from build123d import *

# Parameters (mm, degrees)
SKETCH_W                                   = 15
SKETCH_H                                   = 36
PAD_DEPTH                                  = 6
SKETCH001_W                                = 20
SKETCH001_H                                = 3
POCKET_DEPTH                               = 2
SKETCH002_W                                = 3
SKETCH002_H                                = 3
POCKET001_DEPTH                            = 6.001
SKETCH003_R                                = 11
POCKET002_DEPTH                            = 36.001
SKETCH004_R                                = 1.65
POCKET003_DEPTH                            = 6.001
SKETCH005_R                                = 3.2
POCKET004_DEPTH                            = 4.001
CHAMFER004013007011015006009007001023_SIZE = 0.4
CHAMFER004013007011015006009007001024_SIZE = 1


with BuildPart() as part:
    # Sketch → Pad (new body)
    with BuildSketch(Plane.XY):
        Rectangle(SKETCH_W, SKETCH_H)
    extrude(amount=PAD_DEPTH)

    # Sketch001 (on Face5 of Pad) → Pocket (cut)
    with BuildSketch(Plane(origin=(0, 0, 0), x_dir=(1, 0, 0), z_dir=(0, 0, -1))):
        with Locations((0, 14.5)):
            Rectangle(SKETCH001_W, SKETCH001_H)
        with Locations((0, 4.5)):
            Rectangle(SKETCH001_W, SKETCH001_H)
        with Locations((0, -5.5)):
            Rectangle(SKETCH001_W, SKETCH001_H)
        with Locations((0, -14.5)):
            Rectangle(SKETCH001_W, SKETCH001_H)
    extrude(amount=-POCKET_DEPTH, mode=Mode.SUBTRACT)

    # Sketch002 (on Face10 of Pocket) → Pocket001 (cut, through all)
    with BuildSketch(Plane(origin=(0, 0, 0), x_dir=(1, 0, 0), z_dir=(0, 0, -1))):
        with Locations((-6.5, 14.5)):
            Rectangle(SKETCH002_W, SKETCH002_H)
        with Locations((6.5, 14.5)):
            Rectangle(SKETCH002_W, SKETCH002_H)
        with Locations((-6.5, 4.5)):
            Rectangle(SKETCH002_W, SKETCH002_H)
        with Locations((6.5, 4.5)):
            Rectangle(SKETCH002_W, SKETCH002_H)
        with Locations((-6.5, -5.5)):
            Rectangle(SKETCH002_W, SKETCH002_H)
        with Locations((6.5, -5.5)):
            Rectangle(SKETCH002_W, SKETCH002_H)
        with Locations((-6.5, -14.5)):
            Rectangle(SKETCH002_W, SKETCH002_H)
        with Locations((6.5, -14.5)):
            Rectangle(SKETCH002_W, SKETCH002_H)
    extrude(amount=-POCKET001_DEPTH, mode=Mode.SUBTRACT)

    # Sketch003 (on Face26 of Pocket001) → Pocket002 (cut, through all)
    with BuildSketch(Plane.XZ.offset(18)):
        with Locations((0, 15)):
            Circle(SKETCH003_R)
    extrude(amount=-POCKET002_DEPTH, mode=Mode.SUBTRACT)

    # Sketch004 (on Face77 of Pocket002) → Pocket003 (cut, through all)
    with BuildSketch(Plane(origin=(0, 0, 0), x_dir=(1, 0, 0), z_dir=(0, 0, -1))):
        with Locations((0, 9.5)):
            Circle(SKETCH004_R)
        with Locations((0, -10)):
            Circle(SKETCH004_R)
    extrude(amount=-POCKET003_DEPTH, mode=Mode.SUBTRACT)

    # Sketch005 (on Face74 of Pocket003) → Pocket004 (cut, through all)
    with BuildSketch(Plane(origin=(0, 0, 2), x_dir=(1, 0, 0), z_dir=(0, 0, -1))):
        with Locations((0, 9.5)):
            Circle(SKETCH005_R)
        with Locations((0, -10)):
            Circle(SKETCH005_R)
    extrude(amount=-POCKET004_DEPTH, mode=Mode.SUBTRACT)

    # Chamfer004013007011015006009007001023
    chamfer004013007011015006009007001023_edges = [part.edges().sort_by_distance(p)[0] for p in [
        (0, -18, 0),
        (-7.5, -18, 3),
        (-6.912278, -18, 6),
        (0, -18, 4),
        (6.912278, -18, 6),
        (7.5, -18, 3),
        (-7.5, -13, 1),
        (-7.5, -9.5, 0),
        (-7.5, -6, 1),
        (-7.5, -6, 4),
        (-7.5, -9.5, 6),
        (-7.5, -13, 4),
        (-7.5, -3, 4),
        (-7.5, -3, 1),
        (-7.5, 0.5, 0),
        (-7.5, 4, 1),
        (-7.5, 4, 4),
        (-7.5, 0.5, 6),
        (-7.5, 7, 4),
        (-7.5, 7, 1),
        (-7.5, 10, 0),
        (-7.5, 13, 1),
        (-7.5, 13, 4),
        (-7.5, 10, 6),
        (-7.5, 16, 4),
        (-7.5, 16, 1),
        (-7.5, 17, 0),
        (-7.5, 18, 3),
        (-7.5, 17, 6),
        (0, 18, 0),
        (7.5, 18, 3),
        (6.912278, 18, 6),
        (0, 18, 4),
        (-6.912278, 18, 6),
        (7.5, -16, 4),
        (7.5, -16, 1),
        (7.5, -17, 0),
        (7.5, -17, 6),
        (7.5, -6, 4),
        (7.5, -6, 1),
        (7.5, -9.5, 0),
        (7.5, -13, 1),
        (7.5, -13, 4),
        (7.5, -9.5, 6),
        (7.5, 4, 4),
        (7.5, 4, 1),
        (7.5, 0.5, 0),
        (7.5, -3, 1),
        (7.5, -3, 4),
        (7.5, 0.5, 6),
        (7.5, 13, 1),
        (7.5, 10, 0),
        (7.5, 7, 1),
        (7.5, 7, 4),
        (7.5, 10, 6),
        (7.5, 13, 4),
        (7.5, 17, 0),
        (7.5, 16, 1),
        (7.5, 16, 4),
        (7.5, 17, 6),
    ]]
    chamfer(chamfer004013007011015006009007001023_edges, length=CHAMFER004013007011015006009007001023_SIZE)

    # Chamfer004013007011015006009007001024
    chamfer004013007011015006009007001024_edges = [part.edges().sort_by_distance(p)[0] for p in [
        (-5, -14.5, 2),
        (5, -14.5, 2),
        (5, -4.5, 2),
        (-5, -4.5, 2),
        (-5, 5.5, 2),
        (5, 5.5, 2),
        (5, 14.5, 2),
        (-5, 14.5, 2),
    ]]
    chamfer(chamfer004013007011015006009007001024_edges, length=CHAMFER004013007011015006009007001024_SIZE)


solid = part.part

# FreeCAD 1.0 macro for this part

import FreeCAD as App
import Part
import Sketcher
Q = App.Units.Quantity


def edges_at(feature, points):
    """Names of the edges that pass closest to the given points."""
    edges = feature.Shape.Edges
    near = lambda p: min(range(len(edges)), key=lambda i: edges[i].distToShape(Part.Vertex(*p))[0])
    return sorted({f"Edge{near(p) + 1}" for p in points})

doc = App.newDocument("Part")
body = doc.addObject("PartDesign::Body", "Body")

# Sketch on XY plane
sketch1 = body.newObject("Sketcher::SketchObject", "Sketch")
sketch1.AttachmentSupport = (doc.getObject("XY_Plane"), [""])
sketch1.MapMode = "FlatFace"
sketch1.addGeometry([
    Part.LineSegment(App.Vector(-8, 18, 0), App.Vector(-8, -18, 0)),
    Part.LineSegment(App.Vector(-8, -18, 0), App.Vector(8, -18, 0)),
    Part.LineSegment(App.Vector(8, -18, 0), App.Vector(8, 18, 0)),
    Part.LineSegment(App.Vector(8, 18, 0), App.Vector(-8, 18, 0)),
], False)
sketch1.addConstraint([
    Sketcher.Constraint("Coincident", 0, 2, 1, 1),
    Sketcher.Constraint("Coincident", 1, 2, 2, 1),
    Sketcher.Constraint("Coincident", 2, 2, 3, 1),
    Sketcher.Constraint("Coincident", 3, 2, 0, 1),
    Sketcher.Constraint("Vertical", 0),
    Sketcher.Constraint("Horizontal", 1),
    Sketcher.Constraint("Vertical", 2),
    Sketcher.Constraint("Horizontal", 3),
    Sketcher.Constraint("Symmetric", 0, 2, 2, 2, -1, 1),
    Sketcher.Constraint("DistanceX", 1, 1, 1, 2, Q("15 mm")),
    Sketcher.Constraint("DistanceY", 0, 2, 0, 1, Q("36 mm")),
])
pad1 = body.newObject("PartDesign::Pad", "Pad")
pad1.Profile = sketch1
pad1.Length = 6

# Sketch on XY plane
sketch2 = body.newObject("Sketcher::SketchObject", "Sketch001")
sketch2.AttachmentSupport = (doc.getObject("XY_Plane"), [""])
sketch2.MapMode = "FlatFace"
sketch2.addGeometry([
    Part.LineSegment(App.Vector(-10, -16, 0), App.Vector(-10, -13, 0)),  # 0
    Part.LineSegment(App.Vector(-10, -13, 0), App.Vector(10, -13, 0)),  # 1
    Part.LineSegment(App.Vector(10, -13, 0), App.Vector(10, -16, 0)),  # 2
    Part.LineSegment(App.Vector(10, -16, 0), App.Vector(-10, -16, 0)),  # 3
    Part.LineSegment(App.Vector(-10, -6, 0), App.Vector(-10, -3, 0)),  # 4
    Part.LineSegment(App.Vector(-10, -3, 0), App.Vector(10, -3, 0)),  # 5
    Part.LineSegment(App.Vector(10, -3, 0), App.Vector(10, -6, 0)),  # 6
    Part.LineSegment(App.Vector(10, -6, 0), App.Vector(-10, -6, 0)),  # 7
    Part.LineSegment(App.Vector(-10, 4, 0), App.Vector(-10, 7, 0)),  # 8
    Part.LineSegment(App.Vector(-10, 7, 0), App.Vector(10, 7, 0)),  # 9
    Part.LineSegment(App.Vector(10, 7, 0), App.Vector(10, 4, 0)),  # 10
    Part.LineSegment(App.Vector(10, 4, 0), App.Vector(-10, 4, 0)),  # 11
    Part.LineSegment(App.Vector(-10, 13, 0), App.Vector(-10, 16, 0)),  # 12
    Part.LineSegment(App.Vector(-10, 16, 0), App.Vector(10, 16, 0)),  # 13
    Part.LineSegment(App.Vector(10, 16, 0), App.Vector(10, 13, 0)),  # 14
    Part.LineSegment(App.Vector(10, 13, 0), App.Vector(-10, 13, 0)),  # 15
], False)
sketch2.addConstraint([
    Sketcher.Constraint("Coincident", 0, 2, 1, 1),
    Sketcher.Constraint("Coincident", 1, 2, 2, 1),
    Sketcher.Constraint("Coincident", 2, 2, 3, 1),
    Sketcher.Constraint("Coincident", 3, 2, 0, 1),
    Sketcher.Constraint("Coincident", 4, 2, 5, 1),
    Sketcher.Constraint("Coincident", 5, 2, 6, 1),
    Sketcher.Constraint("Coincident", 6, 2, 7, 1),
    Sketcher.Constraint("Coincident", 7, 2, 4, 1),
    Sketcher.Constraint("Coincident", 8, 2, 9, 1),
    Sketcher.Constraint("Coincident", 9, 2, 10, 1),
    Sketcher.Constraint("Coincident", 10, 2, 11, 1),
    Sketcher.Constraint("Coincident", 11, 2, 8, 1),
    Sketcher.Constraint("Coincident", 12, 2, 13, 1),
    Sketcher.Constraint("Coincident", 13, 2, 14, 1),
    Sketcher.Constraint("Coincident", 14, 2, 15, 1),
    Sketcher.Constraint("Coincident", 15, 2, 12, 1),
    Sketcher.Constraint("Vertical", 0),
    Sketcher.Constraint("Horizontal", 1),
    Sketcher.Constraint("Vertical", 2),
    Sketcher.Constraint("Horizontal", 3),
    Sketcher.Constraint("Vertical", 4),
    Sketcher.Constraint("Horizontal", 5),
    Sketcher.Constraint("Vertical", 6),
    Sketcher.Constraint("Horizontal", 7),
    Sketcher.Constraint("Vertical", 8),
    Sketcher.Constraint("Horizontal", 9),
    Sketcher.Constraint("Vertical", 10),
    Sketcher.Constraint("Horizontal", 11),
    Sketcher.Constraint("Vertical", 12),
    Sketcher.Constraint("Horizontal", 13),
    Sketcher.Constraint("Vertical", 14),
    Sketcher.Constraint("Horizontal", 15),
    Sketcher.Constraint("Symmetric", 2, 2, 12, 2, -1, 1),
    Sketcher.Constraint("Symmetric", 0, 2, 14, 2, -1, 1),
    Sketcher.Constraint("Vertical", 3, 2, 4, 2),
    Sketcher.Constraint("Vertical", 2, 2, 5, 2),
    Sketcher.Constraint("Vertical", 7, 2, 8, 2),
    Sketcher.Constraint("Vertical", 6, 2, 9, 2),
    Sketcher.Constraint("Vertical", 11, 2, 12, 2),
    Sketcher.Constraint("Equal", 2, 4),
    Sketcher.Constraint("Equal", 6, 8),
    Sketcher.Constraint("DistanceX", 1, 1, 1, 2, Q("20 mm")),
    Sketcher.Constraint("DistanceY", 0, 1, 0, 2, Q("3 mm")),
    Sketcher.Constraint("DistanceY", 0, 2, -1, 1, Q("13 mm")),
    Sketcher.Constraint("DistanceY", 4, 2, -1, 1, Q("3 mm")),
    Sketcher.Constraint("DistanceY", -1, 1, 8, 2, Q("7 mm")),
])
pocket1 = body.newObject("PartDesign::Pocket", "Pocket")
pocket1.Profile = sketch2
pocket1.Length = 2
pocket1.Reversed = True

# Sketch on XY plane
sketch3 = body.newObject("Sketcher::SketchObject", "Sketch002")
sketch3.AttachmentSupport = (doc.getObject("XY_Plane"), [""])
sketch3.MapMode = "FlatFace"
sketch3.addGeometry([
    Part.LineSegment(App.Vector(-8, -16, 0), App.Vector(-8, -13, 0)),  # 0
    Part.LineSegment(App.Vector(-8, -13, 0), App.Vector(-5, -13, 0)),  # 1
    Part.LineSegment(App.Vector(-5, -13, 0), App.Vector(-5, -16, 0)),  # 2
    Part.LineSegment(App.Vector(-5, -16, 0), App.Vector(-8, -16, 0)),  # 3
    Part.LineSegment(App.Vector(5, -16, 0), App.Vector(5, -13, 0)),  # 4
    Part.LineSegment(App.Vector(5, -13, 0), App.Vector(8, -13, 0)),  # 5
    Part.LineSegment(App.Vector(8, -13, 0), App.Vector(8, -16, 0)),  # 6
    Part.LineSegment(App.Vector(8, -16, 0), App.Vector(5, -16, 0)),  # 7
    Part.LineSegment(App.Vector(-8, -6, 0), App.Vector(-8, -3, 0)),  # 8
    Part.LineSegment(App.Vector(-8, -3, 0), App.Vector(-5, -3, 0)),  # 9
    Part.LineSegment(App.Vector(-5, -3, 0), App.Vector(-5, -6, 0)),  # 10
    Part.LineSegment(App.Vector(-5, -6, 0), App.Vector(-8, -6, 0)),  # 11
    Part.LineSegment(App.Vector(5, -6, 0), App.Vector(5, -3, 0)),  # 12
    Part.LineSegment(App.Vector(5, -3, 0), App.Vector(8, -3, 0)),  # 13
    Part.LineSegment(App.Vector(8, -3, 0), App.Vector(8, -6, 0)),  # 14
    Part.LineSegment(App.Vector(8, -6, 0), App.Vector(5, -6, 0)),  # 15
    Part.LineSegment(App.Vector(-8, 4, 0), App.Vector(-8, 7, 0)),  # 16
    Part.LineSegment(App.Vector(-8, 7, 0), App.Vector(-5, 7, 0)),  # 17
    Part.LineSegment(App.Vector(-5, 7, 0), App.Vector(-5, 4, 0)),  # 18
    Part.LineSegment(App.Vector(-5, 4, 0), App.Vector(-8, 4, 0)),  # 19
    Part.LineSegment(App.Vector(5, 4, 0), App.Vector(5, 7, 0)),  # 20
    Part.LineSegment(App.Vector(5, 7, 0), App.Vector(8, 7, 0)),  # 21
    Part.LineSegment(App.Vector(8, 7, 0), App.Vector(8, 4, 0)),  # 22
    Part.LineSegment(App.Vector(8, 4, 0), App.Vector(5, 4, 0)),  # 23
    Part.LineSegment(App.Vector(-8, 13, 0), App.Vector(-8, 16, 0)),  # 24
    Part.LineSegment(App.Vector(-8, 16, 0), App.Vector(-5, 16, 0)),  # 25
    Part.LineSegment(App.Vector(-5, 16, 0), App.Vector(-5, 13, 0)),  # 26
    Part.LineSegment(App.Vector(-5, 13, 0), App.Vector(-8, 13, 0)),  # 27
    Part.LineSegment(App.Vector(5, 13, 0), App.Vector(5, 16, 0)),  # 28
    Part.LineSegment(App.Vector(5, 16, 0), App.Vector(8, 16, 0)),  # 29
    Part.LineSegment(App.Vector(8, 16, 0), App.Vector(8, 13, 0)),  # 30
    Part.LineSegment(App.Vector(8, 13, 0), App.Vector(5, 13, 0)),  # 31
], False)
sketch3.addConstraint([
    Sketcher.Constraint("Coincident", 0, 2, 1, 1),
    Sketcher.Constraint("Coincident", 1, 2, 2, 1),
    Sketcher.Constraint("Coincident", 2, 2, 3, 1),
    Sketcher.Constraint("Coincident", 3, 2, 0, 1),
    Sketcher.Constraint("Coincident", 4, 2, 5, 1),
    Sketcher.Constraint("Coincident", 5, 2, 6, 1),
    Sketcher.Constraint("Coincident", 6, 2, 7, 1),
    Sketcher.Constraint("Coincident", 7, 2, 4, 1),
    Sketcher.Constraint("Coincident", 8, 2, 9, 1),
    Sketcher.Constraint("Coincident", 9, 2, 10, 1),
    Sketcher.Constraint("Coincident", 10, 2, 11, 1),
    Sketcher.Constraint("Coincident", 11, 2, 8, 1),
    Sketcher.Constraint("Coincident", 12, 2, 13, 1),
    Sketcher.Constraint("Coincident", 13, 2, 14, 1),
    Sketcher.Constraint("Coincident", 14, 2, 15, 1),
    Sketcher.Constraint("Coincident", 15, 2, 12, 1),
    Sketcher.Constraint("Coincident", 16, 2, 17, 1),
    Sketcher.Constraint("Coincident", 17, 2, 18, 1),
    Sketcher.Constraint("Coincident", 18, 2, 19, 1),
    Sketcher.Constraint("Coincident", 19, 2, 16, 1),
    Sketcher.Constraint("Coincident", 20, 2, 21, 1),
    Sketcher.Constraint("Coincident", 21, 2, 22, 1),
    Sketcher.Constraint("Coincident", 22, 2, 23, 1),
    Sketcher.Constraint("Coincident", 23, 2, 20, 1),
    Sketcher.Constraint("Coincident", 24, 2, 25, 1),
    Sketcher.Constraint("Coincident", 25, 2, 26, 1),
    Sketcher.Constraint("Coincident", 26, 2, 27, 1),
    Sketcher.Constraint("Coincident", 27, 2, 24, 1),
    Sketcher.Constraint("Coincident", 28, 2, 29, 1),
    Sketcher.Constraint("Coincident", 29, 2, 30, 1),
    Sketcher.Constraint("Coincident", 30, 2, 31, 1),
    Sketcher.Constraint("Coincident", 31, 2, 28, 1),
    Sketcher.Constraint("Vertical", 0),
    Sketcher.Constraint("Horizontal", 1),
    Sketcher.Constraint("Vertical", 2),
    Sketcher.Constraint("Horizontal", 3),
    Sketcher.Constraint("Vertical", 4),
    Sketcher.Constraint("Horizontal", 5),
    Sketcher.Constraint("Vertical", 6),
    Sketcher.Constraint("Horizontal", 7),
    Sketcher.Constraint("Vertical", 8),
    Sketcher.Constraint("Horizontal", 9),
    Sketcher.Constraint("Vertical", 10),
    Sketcher.Constraint("Horizontal", 11),
    Sketcher.Constraint("Vertical", 12),
    Sketcher.Constraint("Horizontal", 13),
    Sketcher.Constraint("Vertical", 14),
    Sketcher.Constraint("Horizontal", 15),
    Sketcher.Constraint("Vertical", 16),
    Sketcher.Constraint("Horizontal", 17),
    Sketcher.Constraint("Vertical", 18),
    Sketcher.Constraint("Horizontal", 19),
    Sketcher.Constraint("Vertical", 20),
    Sketcher.Constraint("Horizontal", 21),
    Sketcher.Constraint("Vertical", 22),
    Sketcher.Constraint("Horizontal", 23),
    Sketcher.Constraint("Vertical", 24),
    Sketcher.Constraint("Horizontal", 25),
    Sketcher.Constraint("Vertical", 26),
    Sketcher.Constraint("Horizontal", 27),
    Sketcher.Constraint("Vertical", 28),
    Sketcher.Constraint("Horizontal", 29),
    Sketcher.Constraint("Vertical", 30),
    Sketcher.Constraint("Horizontal", 31),
    Sketcher.Constraint("Symmetric", 6, 2, 24, 2, -1, 1),
    Sketcher.Constraint("Symmetric", 4, 2, 26, 2, -1, 1),
    Sketcher.Constraint("Symmetric", 2, 2, 28, 2, -1, 1),
    Sketcher.Constraint("Symmetric", 0, 2, 30, 2, -1, 1),
    Sketcher.Constraint("Symmetric", 1, 2, 4, 2, -2),
    Sketcher.Constraint("Symmetric", 3, 2, 6, 2, -2),
    Sketcher.Constraint("Symmetric", 9, 2, 12, 2, -2),
    Sketcher.Constraint("Symmetric", 11, 2, 14, 2, -2),
    Sketcher.Constraint("Symmetric", 17, 2, 20, 2, -2),
    Sketcher.Constraint("Symmetric", 19, 2, 22, 2, -2),
    Sketcher.Constraint("Vertical", 3, 2, 8, 2),
    Sketcher.Constraint("Vertical", 2, 2, 9, 2),
    Sketcher.Constraint("Vertical", 11, 2, 16, 2),
    Sketcher.Constraint("Vertical", 10, 2, 17, 2),
    Sketcher.Constraint("Equal", 31, 0),
    Sketcher.Constraint("Equal", 6, 8),
    Sketcher.Constraint("Equal", 14, 16),
    Sketcher.Constraint("DistanceX", 1, 1, 1, 2, Q("3 mm")),
    Sketcher.Constraint("DistanceX", 0, 2, -1, 1, Q("8 mm")),
    Sketcher.Constraint("DistanceY", 0, 2, -1, 1, Q("13 mm")),
    Sketcher.Constraint("DistanceY", 8, 2, -1, 1, Q("3 mm")),
    Sketcher.Constraint("DistanceY", -1, 1, 16, 2, Q("7 mm")),
])
pocket2 = body.newObject("PartDesign::Pocket", "Pocket001")
pocket2.Profile = sketch3
pocket2.Type = "ThroughAll"
pocket2.Reversed = True

# Sketch on XZ plane
sketch4 = body.newObject("Sketcher::SketchObject", "Sketch003")
sketch4.AttachmentSupport = (doc.getObject("XZ_Plane"), [""])
sketch4.MapMode = "FlatFace"
sketch4.AttachmentOffset = App.Placement(App.Vector(0, 0, 18), App.Rotation())
sketch4.addGeometry(Part.Circle(App.Vector(0, 15, 0), App.Vector(0, 0, 1), 11), False)
sketch4.addConstraint([
    Sketcher.Constraint("PointOnObject", 0, 3, -2),
    Sketcher.Constraint("Diameter", 0, Q("22 mm")),
    Sketcher.Constraint("DistanceY", -1, 1, 0, 3, Q("15 mm")),
])
pocket3 = body.newObject("PartDesign::Pocket", "Pocket002")
pocket3.Profile = sketch4
pocket3.Type = "ThroughAll"

# Sketch on XY plane
sketch5 = body.newObject("Sketcher::SketchObject", "Sketch004")
sketch5.AttachmentSupport = (doc.getObject("XY_Plane"), [""])
sketch5.MapMode = "FlatFace"
sketch5.addGeometry([
    Part.Circle(App.Vector(0, -9.5, 0), App.Vector(0, 0, 1), 1.6),
    Part.Circle(App.Vector(0, 10, 0), App.Vector(0, 0, 1), 1.6),
], False)
sketch5.addConstraint([
    Sketcher.Constraint("Equal", 0, 1),
    Sketcher.Constraint("PointOnObject", 0, 3, -2),
    Sketcher.Constraint("PointOnObject", 1, 3, -2),
    Sketcher.Constraint("Diameter", 0, Q("3.3 mm")),
    Sketcher.Constraint("DistanceY", -1, 1, 1, 3, Q("10 mm")),
    Sketcher.Constraint("DistanceY", 0, 3, -1, 1, Q("9.5 mm")),
])
pocket4 = body.newObject("PartDesign::Pocket", "Pocket003")
pocket4.Profile = sketch5
pocket4.Type = "ThroughAll"
pocket4.Reversed = True

# Sketch on XY plane
sketch6 = body.newObject("Sketcher::SketchObject", "Sketch005")
sketch6.AttachmentSupport = (doc.getObject("XY_Plane"), [""])
sketch6.MapMode = "FlatFace"
sketch6.AttachmentOffset = App.Placement(App.Vector(0, 0, 2), App.Rotation())
sketch6.addGeometry([
    Part.Circle(App.Vector(0, -9.5, 0), App.Vector(0, 0, 1), 3.2),
    Part.Circle(App.Vector(0, 10, 0), App.Vector(0, 0, 1), 3.2),
], False)
sketch6.addConstraint([
    Sketcher.Constraint("Equal", 0, 1),
    Sketcher.Constraint("PointOnObject", 0, 3, -2),
    Sketcher.Constraint("PointOnObject", 1, 3, -2),
    Sketcher.Constraint("Diameter", 0, Q("6.4 mm")),
    Sketcher.Constraint("DistanceY", -1, 1, 1, 3, Q("10 mm")),
    Sketcher.Constraint("DistanceY", 0, 3, -1, 1, Q("9.5 mm")),
])
pocket5 = body.newObject("PartDesign::Pocket", "Pocket004")
pocket5.Profile = sketch6
pocket5.Type = "ThroughAll"
pocket5.Reversed = True
doc.recompute()

chamfer = body.newObject("PartDesign::Chamfer", "Chamfer")
chamfer.Base = (pocket5, edges_at(pocket5, [
    (0, -18, 0),
    (-7.5, -18, 3),
    (-6.912, -18, 6),
    (0, -18, 4),
    (6.912, -18, 6),
    (7.5, -18, 3),
    (-7.5, -13, 3),
    (-7.5, -9.5, 0),
    (-7.5, -6, 3),
    (-7.5, -6, 3),
    (-7.5, -9.5, 6),
    (-7.5, -13, 3),
    (-7.5, -3, 3),
    (-7.5, -3, 3),
    (-7.5, 0.5, 0),
    (-7.5, 4, 3),
    (-7.5, 4, 3),
    (-7.5, 0.5, 6),
    (-7.5, 7, 3),
    (-7.5, 7, 3),
    (-7.5, 10, 0),
    (-7.5, 13, 3),
    (-7.5, 13, 3),
    (-7.5, 10, 6),
    (-7.5, 16, 3),
    (-7.5, 16, 3),
    (-7.5, 17, 0),
    (-7.5, 18, 3),
    (-7.5, 17, 6),
    (0, 18, 0),
    (7.5, 18, 3),
    (6.912, 18, 6),
    (0, 18, 4),
    (-6.912, 18, 6),
    (7.5, -16, 3),
    (7.5, -16, 3),
    (7.5, -17, 0),
    (7.5, -17, 6),
    (7.5, -6, 3),
    (7.5, -6, 3),
    (7.5, -9.5, 0),
    (7.5, -13, 3),
    (7.5, -13, 3),
    (7.5, -9.5, 6),
    (7.5, 4, 3),
    (7.5, 4, 3),
    (7.5, 0.5, 0),
    (7.5, -3, 3),
    (7.5, -3, 3),
    (7.5, 0.5, 6),
    (7.5, 13, 3),
    (7.5, 10, 0),
    (7.5, 7, 3),
    (7.5, 7, 3),
    (7.5, 10, 6),
    (7.5, 13, 3),
    (7.5, 17, 0),
    (7.5, 16, 3),
    (7.5, 16, 3),
    (7.5, 17, 6),
]))
chamfer.Size = 0.4
doc.recompute()

chamfer2 = body.newObject("PartDesign::Chamfer", "Chamfer001")
chamfer2.Base = (chamfer, edges_at(chamfer, [
    (-5, -14.5, 2),
    (5, -14.5, 2),
    (5, -4.5, 2),
    (-5, -4.5, 2),
    (-5, 5.5, 2),
    (5, 5.5, 2),
    (5, 14.5, 2),
    (-5, 14.5, 2),
]))
chamfer2.Size = 1

doc.recompute()
